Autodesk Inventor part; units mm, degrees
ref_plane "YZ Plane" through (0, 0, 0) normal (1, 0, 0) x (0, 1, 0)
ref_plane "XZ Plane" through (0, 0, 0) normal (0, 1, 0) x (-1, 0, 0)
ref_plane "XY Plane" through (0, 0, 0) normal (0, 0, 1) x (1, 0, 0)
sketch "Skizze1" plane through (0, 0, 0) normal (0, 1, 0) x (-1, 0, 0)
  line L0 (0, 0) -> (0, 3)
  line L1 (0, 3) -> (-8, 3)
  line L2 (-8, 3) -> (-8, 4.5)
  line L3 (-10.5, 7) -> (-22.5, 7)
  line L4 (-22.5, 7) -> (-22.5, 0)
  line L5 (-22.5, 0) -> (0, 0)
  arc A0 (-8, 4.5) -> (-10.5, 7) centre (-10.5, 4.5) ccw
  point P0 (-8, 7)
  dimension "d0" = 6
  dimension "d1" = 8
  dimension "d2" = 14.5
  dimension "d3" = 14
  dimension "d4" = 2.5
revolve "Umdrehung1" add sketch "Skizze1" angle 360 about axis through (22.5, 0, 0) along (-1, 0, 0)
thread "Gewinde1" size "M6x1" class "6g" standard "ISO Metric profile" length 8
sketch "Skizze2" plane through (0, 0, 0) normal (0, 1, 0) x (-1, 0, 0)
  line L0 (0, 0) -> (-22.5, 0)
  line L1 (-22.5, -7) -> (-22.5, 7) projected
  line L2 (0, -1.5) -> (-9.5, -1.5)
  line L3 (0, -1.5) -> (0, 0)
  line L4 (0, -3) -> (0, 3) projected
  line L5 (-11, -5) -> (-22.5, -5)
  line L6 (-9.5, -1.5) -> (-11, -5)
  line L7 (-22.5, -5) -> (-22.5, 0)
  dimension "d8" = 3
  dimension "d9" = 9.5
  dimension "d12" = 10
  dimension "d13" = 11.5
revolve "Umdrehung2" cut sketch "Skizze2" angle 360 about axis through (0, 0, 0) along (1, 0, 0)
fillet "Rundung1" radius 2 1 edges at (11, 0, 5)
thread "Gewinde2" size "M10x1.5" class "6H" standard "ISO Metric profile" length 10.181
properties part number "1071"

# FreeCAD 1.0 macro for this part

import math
import FreeCAD as App
import Part
import Sketcher

V = App.Vector
Q = App.Units.Quantity


def edges_at(feature, points):
    """Names of the edges that pass closest to the given points."""
    edges = feature.Shape.Edges
    near = lambda p: min(range(len(edges)), key=lambda i: edges[i].distToShape(Part.Vertex(*p))[0])
    return sorted({f"Edge{near(p) + 1}" for p in points})

doc = App.newDocument("Part")
body = doc.addObject("PartDesign::Body", "Body")

sketch1 = body.newObject("Sketcher::SketchObject", "Sketch")
sketch1.AttachmentSupport = (doc.getObject("XZ_Plane"), [""])
sketch1.MapMode = "FlatFace"
sketch1.addGeometry([
    Part.LineSegment(V(22.5, 0, 0), V(0, 0, 0)),
    Part.LineSegment(V(0, 0, 0), V(0, 3, 0)),
    Part.LineSegment(V(0, 3, 0), V(8, 3, 0)),
    Part.LineSegment(V(8, 3, 0), V(8, 4.5, 0)),
    Part.ArcOfCircle(Part.Circle(V(10.5, 4.5, 0), V(0, 0, 1), 2.5), math.radians(90), math.radians(180)),
    Part.LineSegment(V(10.5, 7, 0), V(22.5, 7, 0)),
    Part.LineSegment(V(22.5, 7, 0), V(22.5, 0, 0)),
], False)
sketch1.addConstraint([
    Sketcher.Constraint("Coincident", 0, 2, 1, 1),
    Sketcher.Constraint("Coincident", 1, 2, 2, 1),
    Sketcher.Constraint("Coincident", 2, 2, 3, 1),
    Sketcher.Constraint("Tangent", 3, 2, 4, 2),
    Sketcher.Constraint("Tangent", 4, 1, 5, 1),
    Sketcher.Constraint("Coincident", 5, 2, 6, 1),
    Sketcher.Constraint("Coincident", 6, 2, 0, 1),
    Sketcher.Constraint("Horizontal", 0),
    Sketcher.Constraint("Vertical", 1),
    Sketcher.Constraint("Horizontal", 2),
    Sketcher.Constraint("Vertical", 3),
    Sketcher.Constraint("Horizontal", 5),
    Sketcher.Constraint("Vertical", 6),
    Sketcher.Constraint("Coincident", 0, 2, -1, 1),
    Sketcher.Constraint("Radius", 4, Q("2.5 mm")),
    Sketcher.Constraint("DistanceX", 2, 1, 2, 2, Q("8 mm")),
    Sketcher.Constraint("DistanceX", 3, 2, 5, 2, Q("14.5 mm")),
    Sketcher.Constraint("DistanceY", 1, 1, 1, 2, Q("3 mm")),
    Sketcher.Constraint("DistanceY", 6, 2, 6, 1, Q("7 mm")),
])
revolution = body.newObject("PartDesign::Revolution", "Revolution")
revolution.Profile = sketch1
revolution.ReferenceAxis = (sketch1, ["H_Axis"])
revolution.Angle = 360

sketch2 = body.newObject("Sketcher::SketchObject", "Sketch001")
sketch2.AttachmentSupport = (doc.getObject("XZ_Plane"), [""])
sketch2.MapMode = "FlatFace"
sketch2.addGeometry([
    Part.LineSegment(V(0, -1.5, 0), V(0, 0, 0)),
    Part.LineSegment(V(0, 0, 0), V(22.5, 0, 0)),
    Part.LineSegment(V(22.5, 0, 0), V(22.5, -5, 0)),
    Part.LineSegment(V(22.5, -5, 0), V(11, -5, 0)),
    Part.LineSegment(V(11, -5, 0), V(9.5, -1.5, 0)),
    Part.LineSegment(V(9.5, -1.5, 0), V(0, -1.5, 0)),
], False)
sketch2.addConstraint([
    Sketcher.Constraint("Coincident", 0, 2, 1, 1),
    Sketcher.Constraint("Coincident", 1, 2, 2, 1),
    Sketcher.Constraint("Coincident", 2, 2, 3, 1),
    Sketcher.Constraint("Coincident", 3, 2, 4, 1),
    Sketcher.Constraint("Coincident", 4, 2, 5, 1),
    Sketcher.Constraint("Coincident", 5, 2, 0, 1),
    Sketcher.Constraint("Vertical", 0),
    Sketcher.Constraint("Horizontal", 1),
    Sketcher.Constraint("Vertical", 2),
    Sketcher.Constraint("Horizontal", 3),
    Sketcher.Constraint("Horizontal", 5),
    Sketcher.Constraint("Coincident", 0, 2, -1, 1),
    Sketcher.Constraint("DistanceX", 3, 2, 3, 1, Q("11.5 mm")),
    Sketcher.Constraint("DistanceX", 5, 2, 5, 1, Q("9.5 mm")),
    Sketcher.Constraint("DistanceY", 2, 2, 2, 1, Q("5 mm")),
    Sketcher.Constraint("DistanceX", 1, 1, 1, 2, Q("22.5 mm")),
    Sketcher.Constraint("DistanceY", 0, 1, 0, 2, Q("1.5 mm")),
])
groove = body.newObject("PartDesign::Groove", "Groove")
groove.Profile = sketch2
groove.ReferenceAxis = (sketch2, ["H_Axis"])
groove.Angle = 360
doc.recompute()

fillet = body.newObject("PartDesign::Fillet", "Fillet")
fillet.Base = (groove, edges_at(groove, [(11, 0, 5)]))
fillet.Radius = 2

doc.recompute()
